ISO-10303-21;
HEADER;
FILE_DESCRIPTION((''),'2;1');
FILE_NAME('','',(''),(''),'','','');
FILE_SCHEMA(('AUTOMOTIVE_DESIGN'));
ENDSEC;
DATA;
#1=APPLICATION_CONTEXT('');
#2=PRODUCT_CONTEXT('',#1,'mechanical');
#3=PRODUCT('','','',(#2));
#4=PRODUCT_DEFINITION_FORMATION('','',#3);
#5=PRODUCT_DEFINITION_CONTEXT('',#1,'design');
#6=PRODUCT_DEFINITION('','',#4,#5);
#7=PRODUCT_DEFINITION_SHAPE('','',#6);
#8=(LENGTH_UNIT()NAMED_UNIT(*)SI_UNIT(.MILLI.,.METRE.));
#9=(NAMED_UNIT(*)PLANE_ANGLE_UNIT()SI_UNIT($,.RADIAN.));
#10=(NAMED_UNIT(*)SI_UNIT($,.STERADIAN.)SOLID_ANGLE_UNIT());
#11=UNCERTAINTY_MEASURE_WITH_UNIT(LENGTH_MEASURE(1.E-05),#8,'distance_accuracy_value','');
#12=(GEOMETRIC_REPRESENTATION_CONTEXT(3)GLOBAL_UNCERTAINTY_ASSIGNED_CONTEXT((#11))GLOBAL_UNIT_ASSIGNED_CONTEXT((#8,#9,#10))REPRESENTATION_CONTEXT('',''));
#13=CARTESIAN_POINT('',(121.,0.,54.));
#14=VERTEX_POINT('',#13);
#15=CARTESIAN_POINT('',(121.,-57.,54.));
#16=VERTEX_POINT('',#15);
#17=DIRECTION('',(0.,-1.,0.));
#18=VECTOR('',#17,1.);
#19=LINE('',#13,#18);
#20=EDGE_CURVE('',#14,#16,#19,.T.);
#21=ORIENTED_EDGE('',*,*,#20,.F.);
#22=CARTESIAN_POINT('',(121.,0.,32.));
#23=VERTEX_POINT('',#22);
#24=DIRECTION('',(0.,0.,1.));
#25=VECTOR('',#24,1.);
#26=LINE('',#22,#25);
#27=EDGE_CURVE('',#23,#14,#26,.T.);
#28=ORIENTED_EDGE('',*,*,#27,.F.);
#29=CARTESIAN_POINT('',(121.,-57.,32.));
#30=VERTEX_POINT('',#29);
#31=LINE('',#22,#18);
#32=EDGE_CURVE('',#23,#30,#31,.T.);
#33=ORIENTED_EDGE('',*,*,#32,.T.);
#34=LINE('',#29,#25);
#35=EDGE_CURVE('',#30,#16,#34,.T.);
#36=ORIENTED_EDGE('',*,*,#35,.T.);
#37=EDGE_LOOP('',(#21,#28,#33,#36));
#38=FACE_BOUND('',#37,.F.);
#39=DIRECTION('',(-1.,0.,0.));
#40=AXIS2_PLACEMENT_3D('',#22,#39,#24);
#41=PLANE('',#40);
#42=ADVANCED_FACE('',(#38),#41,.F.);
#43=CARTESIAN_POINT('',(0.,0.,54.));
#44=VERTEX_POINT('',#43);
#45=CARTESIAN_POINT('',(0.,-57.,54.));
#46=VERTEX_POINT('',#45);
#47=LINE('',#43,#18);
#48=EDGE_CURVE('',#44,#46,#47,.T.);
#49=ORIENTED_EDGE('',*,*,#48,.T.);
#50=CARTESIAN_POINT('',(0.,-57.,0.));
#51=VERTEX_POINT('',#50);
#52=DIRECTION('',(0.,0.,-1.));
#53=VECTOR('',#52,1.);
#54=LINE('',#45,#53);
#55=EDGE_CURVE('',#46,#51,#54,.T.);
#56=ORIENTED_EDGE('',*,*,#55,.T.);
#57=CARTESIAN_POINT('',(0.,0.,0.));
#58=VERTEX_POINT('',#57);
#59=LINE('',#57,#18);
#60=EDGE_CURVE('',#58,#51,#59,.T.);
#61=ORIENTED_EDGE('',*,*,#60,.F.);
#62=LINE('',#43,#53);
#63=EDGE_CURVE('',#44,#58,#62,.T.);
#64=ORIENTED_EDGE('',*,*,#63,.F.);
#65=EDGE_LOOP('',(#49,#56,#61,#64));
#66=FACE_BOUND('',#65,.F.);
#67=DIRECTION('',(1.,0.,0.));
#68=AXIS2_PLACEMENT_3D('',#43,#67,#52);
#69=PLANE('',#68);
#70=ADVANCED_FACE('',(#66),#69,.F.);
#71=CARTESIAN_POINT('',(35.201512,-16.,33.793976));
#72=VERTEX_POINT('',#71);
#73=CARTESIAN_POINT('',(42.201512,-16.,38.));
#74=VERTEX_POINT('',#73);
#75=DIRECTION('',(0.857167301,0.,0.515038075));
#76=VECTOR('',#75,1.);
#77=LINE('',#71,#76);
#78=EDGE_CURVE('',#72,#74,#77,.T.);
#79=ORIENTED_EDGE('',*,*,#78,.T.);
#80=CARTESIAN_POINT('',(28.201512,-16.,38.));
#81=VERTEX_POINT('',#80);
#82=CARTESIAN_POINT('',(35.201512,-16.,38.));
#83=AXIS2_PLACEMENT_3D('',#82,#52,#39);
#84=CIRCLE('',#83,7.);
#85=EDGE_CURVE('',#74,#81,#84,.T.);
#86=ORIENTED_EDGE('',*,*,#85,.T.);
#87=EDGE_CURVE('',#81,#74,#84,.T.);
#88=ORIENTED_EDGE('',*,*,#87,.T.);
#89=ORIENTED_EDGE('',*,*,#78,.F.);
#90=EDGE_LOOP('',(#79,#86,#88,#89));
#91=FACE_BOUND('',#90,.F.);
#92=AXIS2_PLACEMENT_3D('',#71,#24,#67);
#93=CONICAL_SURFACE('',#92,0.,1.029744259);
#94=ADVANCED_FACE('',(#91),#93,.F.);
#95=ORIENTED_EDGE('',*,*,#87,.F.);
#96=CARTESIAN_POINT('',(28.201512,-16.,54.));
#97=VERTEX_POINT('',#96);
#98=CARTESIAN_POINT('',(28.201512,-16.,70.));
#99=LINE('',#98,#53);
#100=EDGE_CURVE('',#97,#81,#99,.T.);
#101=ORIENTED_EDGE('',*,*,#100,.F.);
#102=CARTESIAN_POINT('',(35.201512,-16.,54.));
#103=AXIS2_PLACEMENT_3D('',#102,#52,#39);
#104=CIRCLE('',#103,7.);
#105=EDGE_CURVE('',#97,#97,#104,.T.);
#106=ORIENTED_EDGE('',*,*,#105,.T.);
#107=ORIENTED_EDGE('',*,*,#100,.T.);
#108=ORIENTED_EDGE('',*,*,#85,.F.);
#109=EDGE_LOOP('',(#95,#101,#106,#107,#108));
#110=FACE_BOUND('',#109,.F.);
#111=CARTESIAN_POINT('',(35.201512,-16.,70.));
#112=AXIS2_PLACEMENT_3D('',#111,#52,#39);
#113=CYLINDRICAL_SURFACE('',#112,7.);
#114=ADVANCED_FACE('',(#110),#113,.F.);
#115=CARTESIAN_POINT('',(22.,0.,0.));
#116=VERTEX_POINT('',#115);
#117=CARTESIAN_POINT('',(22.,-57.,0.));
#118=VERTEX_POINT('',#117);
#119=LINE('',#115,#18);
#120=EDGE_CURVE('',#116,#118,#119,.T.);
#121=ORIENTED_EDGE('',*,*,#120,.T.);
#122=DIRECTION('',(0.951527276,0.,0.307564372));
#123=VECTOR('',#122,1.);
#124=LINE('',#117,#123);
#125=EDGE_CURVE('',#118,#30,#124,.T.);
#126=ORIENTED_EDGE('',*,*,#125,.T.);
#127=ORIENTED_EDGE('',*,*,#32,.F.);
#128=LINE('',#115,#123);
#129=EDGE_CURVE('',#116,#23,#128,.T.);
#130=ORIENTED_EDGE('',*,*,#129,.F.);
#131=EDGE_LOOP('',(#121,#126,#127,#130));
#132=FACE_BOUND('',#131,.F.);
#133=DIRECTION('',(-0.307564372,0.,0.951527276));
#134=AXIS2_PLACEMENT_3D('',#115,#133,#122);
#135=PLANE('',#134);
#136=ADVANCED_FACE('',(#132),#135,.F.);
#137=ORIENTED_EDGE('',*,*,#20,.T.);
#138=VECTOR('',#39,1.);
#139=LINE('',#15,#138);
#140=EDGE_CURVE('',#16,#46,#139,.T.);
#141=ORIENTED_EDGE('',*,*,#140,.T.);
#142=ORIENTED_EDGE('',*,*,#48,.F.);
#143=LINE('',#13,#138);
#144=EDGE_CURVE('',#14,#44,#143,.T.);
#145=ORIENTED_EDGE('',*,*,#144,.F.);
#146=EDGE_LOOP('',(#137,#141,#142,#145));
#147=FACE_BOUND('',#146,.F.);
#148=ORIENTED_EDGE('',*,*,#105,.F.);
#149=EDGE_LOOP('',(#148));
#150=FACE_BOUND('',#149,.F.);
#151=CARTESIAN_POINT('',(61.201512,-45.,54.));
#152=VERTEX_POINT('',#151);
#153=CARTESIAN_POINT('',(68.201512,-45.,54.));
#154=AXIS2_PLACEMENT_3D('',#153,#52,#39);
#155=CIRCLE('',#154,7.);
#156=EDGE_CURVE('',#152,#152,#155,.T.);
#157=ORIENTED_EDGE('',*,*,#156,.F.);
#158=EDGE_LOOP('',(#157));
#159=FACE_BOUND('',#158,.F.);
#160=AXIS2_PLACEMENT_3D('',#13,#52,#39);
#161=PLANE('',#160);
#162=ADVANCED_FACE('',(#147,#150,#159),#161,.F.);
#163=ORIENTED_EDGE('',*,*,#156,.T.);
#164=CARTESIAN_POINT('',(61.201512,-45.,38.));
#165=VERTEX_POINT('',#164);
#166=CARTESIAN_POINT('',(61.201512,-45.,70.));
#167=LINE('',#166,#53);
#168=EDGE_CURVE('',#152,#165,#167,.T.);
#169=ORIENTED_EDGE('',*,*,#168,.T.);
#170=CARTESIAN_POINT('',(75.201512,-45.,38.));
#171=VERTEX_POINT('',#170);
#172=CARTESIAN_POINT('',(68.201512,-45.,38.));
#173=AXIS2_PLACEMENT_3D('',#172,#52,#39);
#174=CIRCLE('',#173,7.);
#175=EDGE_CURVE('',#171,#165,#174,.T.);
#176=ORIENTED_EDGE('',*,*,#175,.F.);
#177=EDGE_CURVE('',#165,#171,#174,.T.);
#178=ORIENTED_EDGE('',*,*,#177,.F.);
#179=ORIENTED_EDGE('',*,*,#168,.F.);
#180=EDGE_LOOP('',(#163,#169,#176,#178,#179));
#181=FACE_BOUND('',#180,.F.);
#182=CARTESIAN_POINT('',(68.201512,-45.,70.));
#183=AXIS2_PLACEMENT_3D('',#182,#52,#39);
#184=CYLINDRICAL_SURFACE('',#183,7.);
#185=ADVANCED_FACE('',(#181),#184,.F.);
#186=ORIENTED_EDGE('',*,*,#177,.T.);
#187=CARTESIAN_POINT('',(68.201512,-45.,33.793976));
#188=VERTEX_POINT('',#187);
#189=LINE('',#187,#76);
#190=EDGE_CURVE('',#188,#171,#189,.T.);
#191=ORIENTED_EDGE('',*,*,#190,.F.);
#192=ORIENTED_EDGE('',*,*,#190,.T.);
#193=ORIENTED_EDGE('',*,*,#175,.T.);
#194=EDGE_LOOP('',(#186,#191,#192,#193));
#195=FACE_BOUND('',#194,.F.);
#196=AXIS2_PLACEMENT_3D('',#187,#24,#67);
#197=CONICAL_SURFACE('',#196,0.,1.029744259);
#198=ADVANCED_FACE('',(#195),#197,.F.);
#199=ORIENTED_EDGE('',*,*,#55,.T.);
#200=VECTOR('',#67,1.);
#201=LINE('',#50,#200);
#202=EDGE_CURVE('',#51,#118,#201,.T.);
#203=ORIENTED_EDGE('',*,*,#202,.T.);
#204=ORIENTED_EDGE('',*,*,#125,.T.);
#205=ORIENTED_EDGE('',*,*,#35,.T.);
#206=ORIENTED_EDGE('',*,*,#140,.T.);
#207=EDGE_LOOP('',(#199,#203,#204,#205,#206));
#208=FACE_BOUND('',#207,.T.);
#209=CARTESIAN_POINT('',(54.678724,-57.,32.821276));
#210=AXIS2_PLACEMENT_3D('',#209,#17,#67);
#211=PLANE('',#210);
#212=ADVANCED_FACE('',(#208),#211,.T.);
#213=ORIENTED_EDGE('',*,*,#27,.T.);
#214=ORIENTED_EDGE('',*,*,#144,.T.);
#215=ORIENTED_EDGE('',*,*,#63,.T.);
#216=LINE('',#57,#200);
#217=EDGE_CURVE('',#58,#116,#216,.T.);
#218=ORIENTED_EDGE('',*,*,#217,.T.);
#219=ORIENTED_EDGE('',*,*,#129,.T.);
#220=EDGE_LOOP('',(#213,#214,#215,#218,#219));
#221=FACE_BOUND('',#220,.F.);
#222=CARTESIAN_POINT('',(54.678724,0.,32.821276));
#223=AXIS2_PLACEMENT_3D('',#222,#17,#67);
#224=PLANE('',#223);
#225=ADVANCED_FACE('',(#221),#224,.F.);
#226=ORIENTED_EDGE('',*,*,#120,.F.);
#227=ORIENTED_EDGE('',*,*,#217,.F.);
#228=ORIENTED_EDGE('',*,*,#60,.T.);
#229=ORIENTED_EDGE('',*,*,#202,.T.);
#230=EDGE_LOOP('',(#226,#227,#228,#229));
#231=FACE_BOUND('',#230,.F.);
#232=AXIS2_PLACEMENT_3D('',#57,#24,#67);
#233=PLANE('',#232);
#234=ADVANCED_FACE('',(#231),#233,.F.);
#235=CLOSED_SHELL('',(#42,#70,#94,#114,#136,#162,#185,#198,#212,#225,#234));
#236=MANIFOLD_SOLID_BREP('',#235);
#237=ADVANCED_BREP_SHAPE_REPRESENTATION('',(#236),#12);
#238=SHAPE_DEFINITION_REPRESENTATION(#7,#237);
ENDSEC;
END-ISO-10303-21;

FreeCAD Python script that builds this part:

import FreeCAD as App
import Part
import Sketcher
Q = App.Units.Quantity


def add_polygon(sketch, points):
    """Adds a closed chain of lines whose ends are joined by coincident constraints."""
    first, n = sketch.GeometryCount, len(points)
    for a, b in zip(points, points[1:] + points[:1]):
        sketch.addGeometry(Part.LineSegment(App.Vector(*a, 0), App.Vector(*b, 0)), False)
    for i in range(n):
        sketch.addConstraint(Sketcher.Constraint("Coincident", first + i, 2, first + (i + 1) % n, 1))

doc = App.newDocument("Part")
body = doc.addObject("PartDesign::Body", "Body")

sketch1 = body.newObject("Sketcher::SketchObject", "Sketch")
sketch1.AttachmentSupport = (doc.getObject("XZ_Plane"), [""])
sketch1.MapMode = "FlatFace"
add_polygon(sketch1, [(121, 54), (0, 54), (0, 0), (22, 0), (121, 32)])
sketch1.addConstraint([
    Sketcher.Constraint("Horizontal", 0),
    Sketcher.Constraint("Vertical", 1),
    Sketcher.Constraint("Horizontal", 2),
    Sketcher.Constraint("Vertical", 4),
    Sketcher.Constraint("Coincident", 1, 2, -1, 1),
    Sketcher.Constraint("Equal", 2, 4),
    Sketcher.Constraint("DistanceX", 0, 2, 0, 1, Q("121 mm")),
    Sketcher.Constraint("DistanceX", 2, 1, 2, 2, Q("22 mm")),
    Sketcher.Constraint("DistanceY", 1, 2, 1, 1, Q("54 mm")),
])
pad1 = body.newObject("PartDesign::Pad", "Pad")
pad1.Profile = sketch1
pad1.Length = 57

sketch2 = body.newObject("Sketcher::SketchObject", "Sketch001")
sketch2.AttachmentSupport = (doc.getObject("XY_Plane"), [""])
sketch2.MapMode = "FlatFace"
sketch2.AttachmentOffset = App.Placement(App.Vector(0, 0, 54), App.Rotation())
sketch2.addGeometry([
    Part.Circle(App.Vector(35, -16, 0), App.Vector(0, 0, 1), 7),
    Part.Circle(App.Vector(68, -45, 0), App.Vector(0, 0, 1), 7),
], False)
sketch2.addConstraint([
    Sketcher.Constraint("Equal", 0, 1),
    Sketcher.Constraint("Diameter", 0, Q("14 mm")),
    Sketcher.Constraint("DistanceY", 0, 3, -1, 1, Q("16 mm")),
    Sketcher.Constraint("DistanceY", 1, 3, -1, 1, Q("45 mm")),
    Sketcher.Constraint("DistanceX", 0, 3, 1, 3, Q("33 mm")),
    Sketcher.Constraint("DistanceX", -1, 1, 0, 3, Q("35.201512 mm")),
])
doc.recompute()
hole = body.newObject("PartDesign::Hole", "Hole")
hole.Profile = sketch2
hole.ThreadType = "None"
hole.Diameter = 14
hole.DepthType = "Dimension"
hole.Depth = 16
hole.DrillPoint = "Angled"
hole.DrillPointAngle = 118

doc.recompute()
